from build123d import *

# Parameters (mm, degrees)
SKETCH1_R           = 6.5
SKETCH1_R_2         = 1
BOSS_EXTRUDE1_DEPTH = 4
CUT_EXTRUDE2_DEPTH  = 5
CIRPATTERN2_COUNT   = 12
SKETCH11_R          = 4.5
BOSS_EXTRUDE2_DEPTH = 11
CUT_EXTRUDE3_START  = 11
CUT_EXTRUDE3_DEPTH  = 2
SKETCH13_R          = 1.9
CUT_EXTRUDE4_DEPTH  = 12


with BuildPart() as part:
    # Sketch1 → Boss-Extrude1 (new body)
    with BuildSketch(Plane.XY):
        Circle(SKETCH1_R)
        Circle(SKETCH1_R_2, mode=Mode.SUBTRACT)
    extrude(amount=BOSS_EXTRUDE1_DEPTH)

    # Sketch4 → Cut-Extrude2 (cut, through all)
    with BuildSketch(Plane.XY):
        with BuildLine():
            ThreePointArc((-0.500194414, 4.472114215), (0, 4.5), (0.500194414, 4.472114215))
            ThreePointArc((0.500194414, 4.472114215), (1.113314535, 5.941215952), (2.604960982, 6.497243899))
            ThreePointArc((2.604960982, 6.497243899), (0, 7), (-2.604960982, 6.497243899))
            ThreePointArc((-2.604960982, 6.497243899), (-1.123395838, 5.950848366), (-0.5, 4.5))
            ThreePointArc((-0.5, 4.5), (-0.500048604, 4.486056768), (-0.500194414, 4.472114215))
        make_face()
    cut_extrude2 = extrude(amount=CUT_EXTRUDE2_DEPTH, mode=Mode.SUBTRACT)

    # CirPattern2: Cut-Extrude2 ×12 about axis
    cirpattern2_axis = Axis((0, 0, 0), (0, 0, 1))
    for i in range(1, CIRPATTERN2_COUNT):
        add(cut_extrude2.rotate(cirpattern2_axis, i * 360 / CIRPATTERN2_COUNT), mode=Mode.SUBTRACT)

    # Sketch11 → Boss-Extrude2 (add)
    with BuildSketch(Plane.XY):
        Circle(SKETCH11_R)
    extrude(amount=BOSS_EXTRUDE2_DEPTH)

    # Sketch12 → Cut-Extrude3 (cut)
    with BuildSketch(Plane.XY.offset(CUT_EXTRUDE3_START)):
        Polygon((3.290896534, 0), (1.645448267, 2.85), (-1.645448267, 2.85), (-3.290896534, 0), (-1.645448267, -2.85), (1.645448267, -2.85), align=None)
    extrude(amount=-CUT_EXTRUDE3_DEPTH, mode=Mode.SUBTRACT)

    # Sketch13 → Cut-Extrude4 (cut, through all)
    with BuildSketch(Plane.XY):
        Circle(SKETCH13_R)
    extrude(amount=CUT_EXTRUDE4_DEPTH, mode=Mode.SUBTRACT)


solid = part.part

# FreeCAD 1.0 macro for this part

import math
import FreeCAD as App
import Part
import Sketcher
Q = App.Units.Quantity

doc = App.newDocument("Part")
body = doc.addObject("PartDesign::Body", "Body")

# Sketch on XY plane
sketch1 = body.newObject("Sketcher::SketchObject", "Sketch")
sketch1.AttachmentSupport = (doc.getObject("XY_Plane"), [""])
sketch1.MapMode = "FlatFace"
sketch1.addGeometry(Part.Circle(App.Vector(0, 0, 0), App.Vector(0, 0, 1), 6.5), False)
sketch1.addGeometry(Part.Circle(App.Vector(0, 0, 0), App.Vector(0, 0, 1), 1), False)
sketch1.addConstraint(Sketcher.Constraint("Coincident", 0, 3, -1, 1))
sketch1.addConstraint(Sketcher.Constraint("Coincident", 1, 3, -1, 1))
sketch1.addConstraint(Sketcher.Constraint("Diameter", 0, Q("13 mm")))
sketch1.addConstraint(Sketcher.Constraint("Diameter", 1, Q("2 mm")))
pad1 = body.newObject("PartDesign::Pad", "Pad")
pad1.Profile = sketch1
pad1.Length = 4

# Sketch on XY plane
sketch2 = body.newObject("Sketcher::SketchObject", "Sketch001")
sketch2.AttachmentSupport = (doc.getObject("XY_Plane"), [""])
sketch2.MapMode = "FlatFace"
sketch2.addGeometry(Part.ArcOfCircle(Part.Circle(App.Vector(0, 0, 0), App.Vector(0, 0, 1), 4.5), math.radians(83.618139), math.radians(96.381861)), False)
sketch2.addGeometry(Part.ArcOfCircle(Part.Circle(App.Vector(2.5, 4.5, 0), App.Vector(0, 0, 1), 2), math.radians(86.991707), math.radians(180.798895)), False)
sketch2.addGeometry(Part.ArcOfCircle(Part.Circle(App.Vector(0, 0, 0), App.Vector(0, 0, 1), 7), math.radians(68.15251), math.radians(111.84749)), False)
sketch2.addGeometry(Part.ArcOfCircle(Part.Circle(App.Vector(-2.5, 4.5, 0), App.Vector(0, 0, 1), 2), math.radians(0), math.radians(93.008293)), False)
sketch2.addGeometry(Part.ArcOfCircle(Part.Circle(App.Vector(-2.499993, 4.5, 0), App.Vector(0, 0, 1), 1.999993), math.radians(-0.798897), math.radians(0.000001)), False)
sketch2.addConstraint(Sketcher.Constraint("Coincident", 0, 1, 1, 2))
sketch2.addConstraint(Sketcher.Constraint("Coincident", 1, 1, 2, 1))
sketch2.addConstraint(Sketcher.Constraint("Coincident", 2, 2, 3, 2))
sketch2.addConstraint(Sketcher.Constraint("Tangent", 3, 1, 4, 2))
sketch2.addConstraint(Sketcher.Constraint("Coincident", 4, 1, 0, 2))
sketch2.addConstraint(Sketcher.Constraint("Coincident", 0, 3, -1, 1))
sketch2.addConstraint(Sketcher.Constraint("Coincident", 2, 3, -1, 1))
sketch2.addConstraint(Sketcher.Constraint("Equal", 1, 3))
sketch2.addConstraint(Sketcher.Constraint("Symmetric", 1, 3, 3, 3, -2))
sketch2.addConstraint(Sketcher.Constraint("Horizontal", 4, 3, 3, 1))
sketch2.addConstraint(Sketcher.Constraint("Radius", 1, Q("2 mm")))
sketch2.addConstraint(Sketcher.Constraint("Radius", 2, Q("7 mm")))
sketch2.addConstraint(Sketcher.Constraint("Radius", 0, Q("4.5 mm")))
sketch2.addConstraint(Sketcher.Constraint("DistanceX", 3, 3, 1, 3, Q("5 mm")))
sketch2.addConstraint(Sketcher.Constraint("DistanceY", -1, 1, 1, 3, Q("4.5 mm")))
sketch2.addConstraint(Sketcher.Constraint("Radius", 4, Q("1.999993 mm")))
pocket1 = body.newObject("PartDesign::Pocket", "Pocket")
pocket1.Profile = sketch2
pocket1.Type = "ThroughAll"
pocket1.Reversed = True
doc.recompute()

polarpattern = body.newObject("PartDesign::PolarPattern", "PolarPattern")
polarpattern.Originals = [pocket1]
polarpattern.Axis = (doc.getObject("Z_Axis"), [""])
polarpattern.Angle = 360
polarpattern.Occurrences = 12
body.Tip = polarpattern

# Sketch on XY plane
sketch3 = body.newObject("Sketcher::SketchObject", "Sketch002")
sketch3.AttachmentSupport = (doc.getObject("XY_Plane"), [""])
sketch3.MapMode = "FlatFace"
sketch3.addGeometry(Part.Circle(App.Vector(0, 0, 0), App.Vector(0, 0, 1), 4.5), False)
sketch3.addConstraint(Sketcher.Constraint("Coincident", 0, 3, -1, 1))
sketch3.addConstraint(Sketcher.Constraint("Diameter", 0, Q("9 mm")))
pad2 = body.newObject("PartDesign::Pad", "Pad001")
pad2.Profile = sketch3
pad2.Length = 11

# Sketch on XY plane
sketch4 = body.newObject("Sketcher::SketchObject", "Sketch003")
sketch4.AttachmentSupport = (doc.getObject("XY_Plane"), [""])
sketch4.MapMode = "FlatFace"
sketch4.AttachmentOffset = App.Placement(App.Vector(0, 0, 11), App.Rotation())
sketch4.addGeometry(Part.LineSegment(App.Vector(3.290897, 0, 0), App.Vector(1.645448, 2.85, 0)), False)
sketch4.addGeometry(Part.LineSegment(App.Vector(1.645448, 2.85, 0), App.Vector(-1.645448, 2.85, 0)), False)
sketch4.addGeometry(Part.LineSegment(App.Vector(-1.645448, 2.85, 0), App.Vector(-3.290897, 0, 0)), False)
sketch4.addGeometry(Part.LineSegment(App.Vector(-3.290897, 0, 0), App.Vector(-1.645448, -2.85, 0)), False)
sketch4.addGeometry(Part.LineSegment(App.Vector(-1.645448, -2.85, 0), App.Vector(1.645448, -2.85, 0)), False)
sketch4.addGeometry(Part.LineSegment(App.Vector(1.645448, -2.85, 0), App.Vector(3.290897, 0, 0)), False)
sketch4.addConstraint(Sketcher.Constraint("Coincident", 0, 2, 1, 1))
sketch4.addConstraint(Sketcher.Constraint("Coincident", 1, 2, 2, 1))
sketch4.addConstraint(Sketcher.Constraint("Coincident", 2, 2, 3, 1))
sketch4.addConstraint(Sketcher.Constraint("Coincident", 3, 2, 4, 1))
sketch4.addConstraint(Sketcher.Constraint("Coincident", 4, 2, 5, 1))
sketch4.addConstraint(Sketcher.Constraint("Coincident", 5, 2, 0, 1))
sketch4.addConstraint(Sketcher.Constraint("Horizontal", 1))
sketch4.addConstraint(Sketcher.Constraint("Horizontal", 4))
sketch4.addConstraint(Sketcher.Constraint("Symmetric", 0, 2, 3, 2, -1, 1))
sketch4.addConstraint(Sketcher.Constraint("Symmetric", 2, 2, 5, 2, -1, 1))
sketch4.addConstraint(Sketcher.Constraint("PointOnObject", 2, 2, -1))
sketch4.addConstraint(Sketcher.Constraint("Parallel", 2, 5))
sketch4.addConstraint(Sketcher.Constraint("Vertical", 1, 2, 3, 2))
sketch4.addConstraint(Sketcher.Constraint("Angle", 0, Q("120 deg")))
sketch4.addConstraint(Sketcher.Constraint("DistanceY", 3, 2, 1, 2, Q("5.7 mm")))
sketch4.addConstraint(Sketcher.Constraint("DistanceX", 1, 2, 1, 1, Q("3.290897 mm")))
pocket2 = body.newObject("PartDesign::Pocket", "Pocket001")
pocket2.Profile = sketch4
pocket2.Length = 2

# Sketch on XY plane
sketch5 = body.newObject("Sketcher::SketchObject", "Sketch004")
sketch5.AttachmentSupport = (doc.getObject("XY_Plane"), [""])
sketch5.MapMode = "FlatFace"
sketch5.addGeometry(Part.Circle(App.Vector(0, 0, 0), App.Vector(0, 0, 1), 1.9), False)
sketch5.addConstraint(Sketcher.Constraint("Coincident", 0, 3, -1, 1))
sketch5.addConstraint(Sketcher.Constraint("Diameter", 0, Q("3.8 mm")))
pocket3 = body.newObject("PartDesign::Pocket", "Pocket002")
pocket3.Profile = sketch5
pocket3.Type = "ThroughAll"
pocket3.Reversed = True

doc.recompute()
